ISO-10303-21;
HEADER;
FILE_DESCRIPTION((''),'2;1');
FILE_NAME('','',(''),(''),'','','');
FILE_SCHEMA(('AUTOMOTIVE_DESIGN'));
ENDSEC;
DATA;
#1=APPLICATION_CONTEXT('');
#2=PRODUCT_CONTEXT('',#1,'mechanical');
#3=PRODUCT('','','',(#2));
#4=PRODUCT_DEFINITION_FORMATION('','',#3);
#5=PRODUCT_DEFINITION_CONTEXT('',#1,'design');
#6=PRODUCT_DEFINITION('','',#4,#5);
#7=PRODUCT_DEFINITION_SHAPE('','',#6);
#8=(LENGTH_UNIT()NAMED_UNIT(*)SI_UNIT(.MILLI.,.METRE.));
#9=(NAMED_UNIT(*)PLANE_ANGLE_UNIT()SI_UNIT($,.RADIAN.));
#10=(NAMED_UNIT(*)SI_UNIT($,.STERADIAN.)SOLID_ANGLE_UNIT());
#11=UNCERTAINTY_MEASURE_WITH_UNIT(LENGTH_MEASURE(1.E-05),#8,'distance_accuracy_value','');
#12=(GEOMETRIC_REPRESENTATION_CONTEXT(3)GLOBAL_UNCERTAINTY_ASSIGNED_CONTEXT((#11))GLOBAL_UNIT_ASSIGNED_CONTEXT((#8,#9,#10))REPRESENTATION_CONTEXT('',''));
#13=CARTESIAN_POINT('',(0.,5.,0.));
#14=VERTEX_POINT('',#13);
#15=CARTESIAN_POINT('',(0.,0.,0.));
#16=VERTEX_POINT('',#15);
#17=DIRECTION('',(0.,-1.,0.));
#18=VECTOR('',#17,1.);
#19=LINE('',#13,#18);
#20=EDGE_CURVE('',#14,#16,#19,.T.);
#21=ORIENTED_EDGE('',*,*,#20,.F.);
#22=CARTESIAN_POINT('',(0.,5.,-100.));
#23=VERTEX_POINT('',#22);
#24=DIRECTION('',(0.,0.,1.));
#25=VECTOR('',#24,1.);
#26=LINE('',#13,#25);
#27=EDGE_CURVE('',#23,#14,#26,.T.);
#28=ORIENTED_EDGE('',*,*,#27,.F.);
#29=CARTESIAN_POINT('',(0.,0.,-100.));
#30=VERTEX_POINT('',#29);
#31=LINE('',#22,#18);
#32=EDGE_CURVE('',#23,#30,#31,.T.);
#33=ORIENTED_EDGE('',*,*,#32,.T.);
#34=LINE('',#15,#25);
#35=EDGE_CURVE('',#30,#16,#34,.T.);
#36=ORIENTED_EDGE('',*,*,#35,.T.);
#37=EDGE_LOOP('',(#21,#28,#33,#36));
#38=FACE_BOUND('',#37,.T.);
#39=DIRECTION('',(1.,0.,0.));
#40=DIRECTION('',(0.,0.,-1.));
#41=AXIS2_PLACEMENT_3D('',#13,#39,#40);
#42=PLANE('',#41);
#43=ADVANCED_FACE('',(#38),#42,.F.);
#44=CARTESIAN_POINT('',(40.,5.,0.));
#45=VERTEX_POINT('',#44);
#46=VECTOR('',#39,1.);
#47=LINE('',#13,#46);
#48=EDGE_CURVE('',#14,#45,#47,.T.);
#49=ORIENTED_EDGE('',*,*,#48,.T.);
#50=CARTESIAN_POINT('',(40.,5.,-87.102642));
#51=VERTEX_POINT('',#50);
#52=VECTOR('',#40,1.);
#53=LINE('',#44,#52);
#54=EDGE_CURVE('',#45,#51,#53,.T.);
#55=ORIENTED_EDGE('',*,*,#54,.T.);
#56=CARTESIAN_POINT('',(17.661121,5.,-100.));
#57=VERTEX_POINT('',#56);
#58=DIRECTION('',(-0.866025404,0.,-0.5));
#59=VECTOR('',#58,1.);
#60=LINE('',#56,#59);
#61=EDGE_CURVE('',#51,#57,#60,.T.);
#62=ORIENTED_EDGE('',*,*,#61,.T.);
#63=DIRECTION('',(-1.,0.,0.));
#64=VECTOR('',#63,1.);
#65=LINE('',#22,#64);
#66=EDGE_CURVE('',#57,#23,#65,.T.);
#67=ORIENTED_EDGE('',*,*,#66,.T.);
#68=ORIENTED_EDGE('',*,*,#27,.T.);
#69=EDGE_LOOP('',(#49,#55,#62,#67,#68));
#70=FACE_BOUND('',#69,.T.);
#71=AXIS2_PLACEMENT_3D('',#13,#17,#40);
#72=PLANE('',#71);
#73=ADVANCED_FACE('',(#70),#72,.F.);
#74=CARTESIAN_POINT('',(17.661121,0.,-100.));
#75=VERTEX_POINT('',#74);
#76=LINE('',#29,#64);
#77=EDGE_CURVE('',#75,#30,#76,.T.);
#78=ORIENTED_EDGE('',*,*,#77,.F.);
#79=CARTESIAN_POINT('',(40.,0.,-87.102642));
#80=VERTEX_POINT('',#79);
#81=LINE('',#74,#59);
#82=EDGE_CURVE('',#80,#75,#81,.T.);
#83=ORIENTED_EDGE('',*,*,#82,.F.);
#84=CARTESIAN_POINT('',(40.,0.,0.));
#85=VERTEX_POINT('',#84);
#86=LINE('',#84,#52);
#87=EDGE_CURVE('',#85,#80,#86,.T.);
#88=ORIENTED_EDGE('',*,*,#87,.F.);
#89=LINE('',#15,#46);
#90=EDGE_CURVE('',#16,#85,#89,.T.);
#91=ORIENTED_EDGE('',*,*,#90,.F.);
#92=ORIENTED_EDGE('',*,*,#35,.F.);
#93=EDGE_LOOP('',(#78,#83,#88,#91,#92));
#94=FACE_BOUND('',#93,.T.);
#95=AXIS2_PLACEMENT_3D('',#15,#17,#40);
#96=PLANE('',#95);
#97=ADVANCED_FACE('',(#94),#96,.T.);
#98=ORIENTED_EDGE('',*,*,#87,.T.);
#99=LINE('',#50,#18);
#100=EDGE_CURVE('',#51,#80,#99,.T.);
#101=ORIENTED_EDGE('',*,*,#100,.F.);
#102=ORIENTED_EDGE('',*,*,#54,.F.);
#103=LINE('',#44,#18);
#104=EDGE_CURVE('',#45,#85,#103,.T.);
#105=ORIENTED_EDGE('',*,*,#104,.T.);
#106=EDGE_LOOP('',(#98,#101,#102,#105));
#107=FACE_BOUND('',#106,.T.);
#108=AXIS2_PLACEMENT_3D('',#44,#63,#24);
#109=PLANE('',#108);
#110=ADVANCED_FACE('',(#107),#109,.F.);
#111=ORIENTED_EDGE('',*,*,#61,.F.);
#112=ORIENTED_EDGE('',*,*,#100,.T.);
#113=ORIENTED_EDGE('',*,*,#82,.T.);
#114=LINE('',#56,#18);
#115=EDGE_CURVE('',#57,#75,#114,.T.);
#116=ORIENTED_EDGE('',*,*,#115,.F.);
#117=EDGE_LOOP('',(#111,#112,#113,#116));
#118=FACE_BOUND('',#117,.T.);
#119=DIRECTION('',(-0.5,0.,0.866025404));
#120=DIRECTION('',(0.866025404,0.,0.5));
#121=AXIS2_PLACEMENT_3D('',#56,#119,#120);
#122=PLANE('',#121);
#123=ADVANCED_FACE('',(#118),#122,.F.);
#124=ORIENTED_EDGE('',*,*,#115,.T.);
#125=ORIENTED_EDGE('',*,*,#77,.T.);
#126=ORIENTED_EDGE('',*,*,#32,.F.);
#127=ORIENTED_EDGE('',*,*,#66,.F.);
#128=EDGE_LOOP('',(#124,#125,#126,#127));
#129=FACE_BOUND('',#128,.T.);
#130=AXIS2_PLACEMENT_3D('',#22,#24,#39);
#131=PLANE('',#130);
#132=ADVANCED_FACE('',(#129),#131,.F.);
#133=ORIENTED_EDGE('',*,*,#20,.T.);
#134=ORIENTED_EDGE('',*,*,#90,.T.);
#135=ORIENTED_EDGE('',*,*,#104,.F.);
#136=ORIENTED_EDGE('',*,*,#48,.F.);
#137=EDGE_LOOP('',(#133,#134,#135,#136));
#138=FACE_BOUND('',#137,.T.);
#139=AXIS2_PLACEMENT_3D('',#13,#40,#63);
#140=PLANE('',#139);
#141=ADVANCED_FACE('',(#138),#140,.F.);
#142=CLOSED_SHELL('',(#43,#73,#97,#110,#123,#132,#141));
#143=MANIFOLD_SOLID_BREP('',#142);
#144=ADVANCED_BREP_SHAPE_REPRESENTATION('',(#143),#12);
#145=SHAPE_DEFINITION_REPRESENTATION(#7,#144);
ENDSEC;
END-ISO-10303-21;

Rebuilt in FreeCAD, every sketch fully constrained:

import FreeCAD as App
import Part
import Sketcher
from FreeCAD import Vector
Q = App.Units.Quantity

doc = App.newDocument("Part")
body = doc.addObject("PartDesign::Body", "Body")

# Sketch on XZ plane
sketch1 = body.newObject("Sketcher::SketchObject", "Sketch")
sketch1.AttachmentSupport = (doc.getObject("XZ_Plane"), [""])
sketch1.MapMode = "FlatFace"
sketch1.addGeometry([
    Part.LineSegment(Vector(18, -100, 0), Vector(0, -100, 0)),  # 0
    Part.LineSegment(Vector(0, -100, 0), Vector(0, 0, 0)),  # 1
    Part.LineSegment(Vector(0, 0, 0), Vector(40, 0, 0)),  # 2
    Part.LineSegment(Vector(40, 0, 0), Vector(40, -87, 0)),  # 3
    Part.LineSegment(Vector(40, -87, 0), Vector(18, -100, 0)),  # 4
], False)
sketch1.addConstraint([
    Sketcher.Constraint("Coincident", 0, 2, 1, 1),
    Sketcher.Constraint("Coincident", 1, 2, 2, 1),
    Sketcher.Constraint("Coincident", 2, 2, 3, 1),
    Sketcher.Constraint("Coincident", 3, 2, 4, 1),
    Sketcher.Constraint("Coincident", 4, 2, 0, 1),
    Sketcher.Constraint("Horizontal", 0),
    Sketcher.Constraint("Vertical", 1),
    Sketcher.Constraint("Horizontal", 2),
    Sketcher.Constraint("Vertical", 3),
    Sketcher.Constraint("Coincident", 1, 2, -1, 1),
    Sketcher.Constraint("DistanceX", 2, 1, 2, 2, Q("40 mm")),
    Sketcher.Constraint("DistanceY", 1, 1, 1, 2, Q("100 mm")),
    Sketcher.Constraint("Angle", 4, Q("-150 deg")),
    Sketcher.Constraint("DistanceX", 0, 2, 0, 1, Q("17.661121 mm")),
])
pad1 = body.newObject("PartDesign::Pad", "Pad")
pad1.Profile = sketch1
pad1.Length = 5
pad1.Reversed = True

doc.recompute()
